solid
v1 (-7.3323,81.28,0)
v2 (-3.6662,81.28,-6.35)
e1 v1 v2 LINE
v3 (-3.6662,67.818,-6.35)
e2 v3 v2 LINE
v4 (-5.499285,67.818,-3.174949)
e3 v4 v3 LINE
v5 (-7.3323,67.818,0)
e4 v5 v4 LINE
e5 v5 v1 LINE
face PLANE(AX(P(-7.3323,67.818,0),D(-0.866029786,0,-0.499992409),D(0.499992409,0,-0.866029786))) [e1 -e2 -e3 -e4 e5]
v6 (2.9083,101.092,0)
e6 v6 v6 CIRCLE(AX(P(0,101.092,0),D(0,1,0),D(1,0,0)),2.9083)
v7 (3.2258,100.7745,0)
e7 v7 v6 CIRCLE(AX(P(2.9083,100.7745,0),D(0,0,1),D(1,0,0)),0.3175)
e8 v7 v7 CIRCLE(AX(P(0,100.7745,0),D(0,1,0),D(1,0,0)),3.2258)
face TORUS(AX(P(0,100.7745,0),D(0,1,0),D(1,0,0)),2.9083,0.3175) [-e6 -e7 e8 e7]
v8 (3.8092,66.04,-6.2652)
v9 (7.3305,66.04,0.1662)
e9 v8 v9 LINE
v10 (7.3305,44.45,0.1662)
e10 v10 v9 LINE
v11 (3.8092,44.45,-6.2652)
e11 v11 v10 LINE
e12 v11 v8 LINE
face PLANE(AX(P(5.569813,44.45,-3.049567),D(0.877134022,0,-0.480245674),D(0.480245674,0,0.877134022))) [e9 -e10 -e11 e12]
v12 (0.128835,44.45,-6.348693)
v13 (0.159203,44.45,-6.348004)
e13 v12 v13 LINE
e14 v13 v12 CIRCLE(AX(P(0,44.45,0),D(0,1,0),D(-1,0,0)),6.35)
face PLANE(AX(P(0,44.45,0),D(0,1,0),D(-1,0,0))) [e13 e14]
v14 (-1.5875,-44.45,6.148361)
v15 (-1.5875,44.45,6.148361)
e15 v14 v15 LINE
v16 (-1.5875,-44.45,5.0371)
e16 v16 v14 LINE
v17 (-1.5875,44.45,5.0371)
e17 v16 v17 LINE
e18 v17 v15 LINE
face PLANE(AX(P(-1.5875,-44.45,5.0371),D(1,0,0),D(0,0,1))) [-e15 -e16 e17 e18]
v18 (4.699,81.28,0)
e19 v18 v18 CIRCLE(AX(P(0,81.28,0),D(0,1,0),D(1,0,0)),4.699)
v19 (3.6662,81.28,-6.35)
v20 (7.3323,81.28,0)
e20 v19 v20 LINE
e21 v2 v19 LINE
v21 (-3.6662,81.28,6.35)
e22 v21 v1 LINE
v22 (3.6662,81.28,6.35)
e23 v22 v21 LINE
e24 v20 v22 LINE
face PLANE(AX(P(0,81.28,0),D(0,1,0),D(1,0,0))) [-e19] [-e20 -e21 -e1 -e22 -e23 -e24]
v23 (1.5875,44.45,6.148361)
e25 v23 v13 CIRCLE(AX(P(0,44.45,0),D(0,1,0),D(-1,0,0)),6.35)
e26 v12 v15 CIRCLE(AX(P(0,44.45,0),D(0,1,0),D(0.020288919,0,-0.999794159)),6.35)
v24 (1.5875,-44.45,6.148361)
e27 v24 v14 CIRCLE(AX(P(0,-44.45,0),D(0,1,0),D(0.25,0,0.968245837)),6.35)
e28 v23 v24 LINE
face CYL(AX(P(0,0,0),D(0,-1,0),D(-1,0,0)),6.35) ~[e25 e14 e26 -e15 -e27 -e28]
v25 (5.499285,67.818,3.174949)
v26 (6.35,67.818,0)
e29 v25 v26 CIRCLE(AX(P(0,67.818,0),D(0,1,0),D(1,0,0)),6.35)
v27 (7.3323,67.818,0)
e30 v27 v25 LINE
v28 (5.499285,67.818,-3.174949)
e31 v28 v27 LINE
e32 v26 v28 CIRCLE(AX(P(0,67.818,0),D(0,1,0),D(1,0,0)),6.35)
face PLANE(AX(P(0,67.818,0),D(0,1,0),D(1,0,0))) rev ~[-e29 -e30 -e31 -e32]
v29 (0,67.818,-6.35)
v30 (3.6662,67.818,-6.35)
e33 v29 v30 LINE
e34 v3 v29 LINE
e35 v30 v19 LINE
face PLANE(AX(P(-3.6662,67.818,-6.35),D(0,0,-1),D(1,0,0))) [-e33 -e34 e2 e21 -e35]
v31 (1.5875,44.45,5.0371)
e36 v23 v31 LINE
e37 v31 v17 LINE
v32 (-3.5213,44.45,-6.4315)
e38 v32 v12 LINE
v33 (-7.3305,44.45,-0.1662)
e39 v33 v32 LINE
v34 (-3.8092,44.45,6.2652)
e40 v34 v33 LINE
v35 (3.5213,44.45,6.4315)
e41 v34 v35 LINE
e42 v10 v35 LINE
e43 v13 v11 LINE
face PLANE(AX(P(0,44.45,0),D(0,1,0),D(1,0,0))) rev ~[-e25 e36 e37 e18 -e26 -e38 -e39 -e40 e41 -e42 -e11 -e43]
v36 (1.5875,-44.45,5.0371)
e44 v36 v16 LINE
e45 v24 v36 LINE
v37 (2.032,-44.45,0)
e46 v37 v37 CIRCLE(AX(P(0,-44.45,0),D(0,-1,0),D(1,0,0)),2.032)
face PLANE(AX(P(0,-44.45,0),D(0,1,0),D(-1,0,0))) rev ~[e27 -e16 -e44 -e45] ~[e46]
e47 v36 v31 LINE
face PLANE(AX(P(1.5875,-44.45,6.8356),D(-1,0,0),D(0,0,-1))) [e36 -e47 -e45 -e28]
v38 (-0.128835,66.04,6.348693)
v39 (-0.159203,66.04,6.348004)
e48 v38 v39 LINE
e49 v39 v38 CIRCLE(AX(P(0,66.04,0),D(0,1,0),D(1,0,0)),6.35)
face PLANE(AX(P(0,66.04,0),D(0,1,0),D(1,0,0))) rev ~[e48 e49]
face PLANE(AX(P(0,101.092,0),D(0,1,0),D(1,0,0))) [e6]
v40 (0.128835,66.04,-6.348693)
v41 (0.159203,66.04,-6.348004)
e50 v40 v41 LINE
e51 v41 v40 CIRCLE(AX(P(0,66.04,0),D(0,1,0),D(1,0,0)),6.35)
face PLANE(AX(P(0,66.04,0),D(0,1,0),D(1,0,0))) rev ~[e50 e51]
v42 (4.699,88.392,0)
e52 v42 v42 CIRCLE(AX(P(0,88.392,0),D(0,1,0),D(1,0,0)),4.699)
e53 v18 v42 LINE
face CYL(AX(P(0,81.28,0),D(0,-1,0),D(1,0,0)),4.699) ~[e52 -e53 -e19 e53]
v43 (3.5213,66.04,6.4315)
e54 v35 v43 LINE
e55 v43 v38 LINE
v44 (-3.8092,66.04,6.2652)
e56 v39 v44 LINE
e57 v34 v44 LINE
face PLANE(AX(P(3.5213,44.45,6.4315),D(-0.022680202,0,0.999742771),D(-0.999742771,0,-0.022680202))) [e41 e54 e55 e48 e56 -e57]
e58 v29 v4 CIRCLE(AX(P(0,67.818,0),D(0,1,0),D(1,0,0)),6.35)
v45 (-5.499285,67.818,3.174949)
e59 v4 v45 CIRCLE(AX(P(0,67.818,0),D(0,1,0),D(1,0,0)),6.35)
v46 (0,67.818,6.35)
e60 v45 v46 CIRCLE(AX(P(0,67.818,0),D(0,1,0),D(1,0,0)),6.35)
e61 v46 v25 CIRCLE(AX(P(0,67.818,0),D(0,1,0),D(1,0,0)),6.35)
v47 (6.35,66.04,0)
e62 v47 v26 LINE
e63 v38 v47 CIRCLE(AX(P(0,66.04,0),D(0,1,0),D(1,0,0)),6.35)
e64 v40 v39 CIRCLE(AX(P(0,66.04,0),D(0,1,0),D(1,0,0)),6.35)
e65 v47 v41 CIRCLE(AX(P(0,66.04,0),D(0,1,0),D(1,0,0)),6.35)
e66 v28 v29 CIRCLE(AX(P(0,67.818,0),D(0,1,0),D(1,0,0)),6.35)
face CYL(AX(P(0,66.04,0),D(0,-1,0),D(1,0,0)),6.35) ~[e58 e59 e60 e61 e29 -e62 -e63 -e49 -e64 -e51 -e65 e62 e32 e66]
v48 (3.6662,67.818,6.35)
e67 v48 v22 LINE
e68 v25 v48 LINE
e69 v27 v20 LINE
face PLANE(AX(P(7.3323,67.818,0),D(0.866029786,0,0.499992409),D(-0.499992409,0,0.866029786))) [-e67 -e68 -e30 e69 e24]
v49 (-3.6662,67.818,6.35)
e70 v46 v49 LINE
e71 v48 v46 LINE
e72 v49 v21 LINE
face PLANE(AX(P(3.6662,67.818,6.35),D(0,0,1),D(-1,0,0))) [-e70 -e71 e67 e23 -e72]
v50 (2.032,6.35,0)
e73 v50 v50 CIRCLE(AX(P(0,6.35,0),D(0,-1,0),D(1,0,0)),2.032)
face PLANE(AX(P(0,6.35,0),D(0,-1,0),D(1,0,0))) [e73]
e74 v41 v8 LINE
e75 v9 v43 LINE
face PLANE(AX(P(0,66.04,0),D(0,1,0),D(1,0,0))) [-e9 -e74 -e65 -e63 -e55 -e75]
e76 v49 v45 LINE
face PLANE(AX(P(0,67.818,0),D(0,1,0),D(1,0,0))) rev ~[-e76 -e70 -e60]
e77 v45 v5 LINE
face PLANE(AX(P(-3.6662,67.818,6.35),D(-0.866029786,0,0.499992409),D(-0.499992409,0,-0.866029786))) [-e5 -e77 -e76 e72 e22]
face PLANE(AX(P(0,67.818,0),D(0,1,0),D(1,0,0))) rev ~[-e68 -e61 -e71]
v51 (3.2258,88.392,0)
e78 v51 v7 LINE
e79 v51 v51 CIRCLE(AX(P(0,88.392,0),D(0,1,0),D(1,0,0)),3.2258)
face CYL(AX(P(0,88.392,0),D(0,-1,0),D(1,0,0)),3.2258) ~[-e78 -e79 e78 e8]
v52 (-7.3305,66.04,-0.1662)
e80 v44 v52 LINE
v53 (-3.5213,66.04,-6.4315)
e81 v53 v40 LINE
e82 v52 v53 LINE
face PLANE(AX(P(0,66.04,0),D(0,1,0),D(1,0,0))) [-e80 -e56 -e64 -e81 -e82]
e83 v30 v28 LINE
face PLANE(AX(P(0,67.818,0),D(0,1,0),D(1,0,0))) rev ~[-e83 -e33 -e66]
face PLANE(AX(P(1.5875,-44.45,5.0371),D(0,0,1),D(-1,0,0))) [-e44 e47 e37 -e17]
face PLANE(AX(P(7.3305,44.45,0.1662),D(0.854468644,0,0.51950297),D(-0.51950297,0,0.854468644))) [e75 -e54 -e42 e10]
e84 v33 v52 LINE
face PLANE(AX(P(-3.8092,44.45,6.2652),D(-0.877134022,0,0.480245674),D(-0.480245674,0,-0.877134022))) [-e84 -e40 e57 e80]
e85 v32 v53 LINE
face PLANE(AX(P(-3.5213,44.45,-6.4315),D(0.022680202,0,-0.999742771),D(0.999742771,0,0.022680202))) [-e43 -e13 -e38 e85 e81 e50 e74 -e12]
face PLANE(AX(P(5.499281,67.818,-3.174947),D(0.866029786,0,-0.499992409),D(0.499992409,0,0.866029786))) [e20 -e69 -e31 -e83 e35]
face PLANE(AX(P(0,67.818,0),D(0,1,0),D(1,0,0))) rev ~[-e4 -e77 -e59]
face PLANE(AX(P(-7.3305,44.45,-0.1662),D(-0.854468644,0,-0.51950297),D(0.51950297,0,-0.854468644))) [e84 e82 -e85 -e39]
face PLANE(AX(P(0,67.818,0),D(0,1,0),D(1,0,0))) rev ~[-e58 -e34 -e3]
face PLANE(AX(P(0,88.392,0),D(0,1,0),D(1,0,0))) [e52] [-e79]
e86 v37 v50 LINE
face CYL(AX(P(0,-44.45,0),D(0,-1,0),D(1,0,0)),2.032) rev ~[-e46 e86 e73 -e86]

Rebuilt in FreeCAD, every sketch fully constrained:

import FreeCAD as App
import Part
import Sketcher

V = App.Vector
Q = App.Units.Quantity


def edges_at(feature, points):
    """Names of the edges that pass closest to the given points."""
    edges = feature.Shape.Edges
    near = lambda p: min(range(len(edges)), key=lambda i: edges[i].distToShape(Part.Vertex(*p))[0])
    return sorted({f"Edge{near(p) + 1}" for p in points})

doc = App.newDocument("Part")
body = doc.addObject("PartDesign::Body", "Body")

# Sketch on XZ plane
sketch1 = body.newObject("Sketcher::SketchObject", "Sketch")
sketch1.AttachmentSupport = (doc.getObject("XZ_Plane"), [""])
sketch1.MapMode = "FlatFace"
sketch1.addGeometry(Part.Circle(V(0, 0, 0), V(0, 0, 1), 6.35), False)
sketch1.addConstraint(Sketcher.Constraint("Coincident", 0, 3, -1, 1))
sketch1.addConstraint(Sketcher.Constraint("Diameter", 0, Q("0.5 in")))
pad1 = body.newObject("PartDesign::Pad", "Pad")
pad1.Profile = sketch1
pad1.Length = Q("3.5 in")
pad1.Midplane = True

# Sketch on XZ plane
sketch2 = body.newObject("Sketcher::SketchObject", "Sketch001")
sketch2.AttachmentSupport = (doc.getObject("XZ_Plane"), [""])
sketch2.MapMode = "FlatFace"
sketch2.AttachmentOffset = App.Placement(V(0, 0, -1.75 * 25.4), App.Rotation())
sketch2.addGeometry(Part.LineSegment(V(7.3305, 0.1662, 0), V(3.8092, -6.2652, 0)), False)
sketch2.addGeometry(Part.LineSegment(V(3.8092, -6.2652, 0), V(-3.5213, -6.4315, 0)), False)
sketch2.addGeometry(Part.LineSegment(V(-3.5213, -6.4315, 0), V(-7.3305, -0.1662, 0)), False)
sketch2.addGeometry(Part.LineSegment(V(-7.3305, -0.1662, 0), V(-3.8092, 6.2652, 0)), False)
sketch2.addGeometry(Part.LineSegment(V(-3.8092, 6.2652, 0), V(3.5213, 6.4315, 0)), False)
sketch2.addGeometry(Part.LineSegment(V(3.5213, 6.4315, 0), V(7.3305, 0.1662, 0)), False)
sketch2.addConstraint(Sketcher.Constraint("Coincident", 0, 2, 1, 1))
sketch2.addConstraint(Sketcher.Constraint("Coincident", 1, 2, 2, 1))
sketch2.addConstraint(Sketcher.Constraint("Coincident", 2, 2, 3, 1))
sketch2.addConstraint(Sketcher.Constraint("Coincident", 3, 2, 4, 1))
sketch2.addConstraint(Sketcher.Constraint("Coincident", 4, 2, 5, 1))
sketch2.addConstraint(Sketcher.Constraint("Coincident", 5, 2, 0, 1))
sketch2.addConstraint(Sketcher.Constraint("Symmetric", 0, 2, 3, 2, -1, 1))
sketch2.addConstraint(Sketcher.Constraint("Symmetric", 1, 2, 4, 2, -1, 1))
sketch2.addConstraint(Sketcher.Constraint("Symmetric", 2, 2, 5, 2, -1, 1))
sketch2.addConstraint(Sketcher.Constraint("Equal", 0, 1))
sketch2.addConstraint(Sketcher.Constraint("Equal", 1, 2))
sketch2.addConstraint(Sketcher.Constraint("Angle", 1, Q("-178.7004 deg")))
sketch2.addConstraint(Sketcher.Constraint("Angle", 2, Q("121.299 deg")))
sketch2.addConstraint(Sketcher.Constraint("DistanceY", 1, 2, -1, 1, Q("0.2532 in")))
sketch2.addConstraint(Sketcher.Constraint("DistanceX", 2, 2, -1, 1, Q("0.2886 in")))
pad2 = body.newObject("PartDesign::Pad", "Pad001")
pad2.Profile = sketch2
pad2.Length = Q("0.85 in")
pad2.Reversed = True

# Sketch on XZ plane
sketch3 = body.newObject("Sketcher::SketchObject", "Sketch002")
sketch3.AttachmentSupport = (doc.getObject("XZ_Plane"), [""])
sketch3.MapMode = "FlatFace"
sketch3.AttachmentOffset = App.Placement(V(0, 0, -2.6 * 25.4), App.Rotation())
sketch3.addGeometry(Part.Circle(V(0, 0, 0), V(0, 0, 1), 6.35), False)
sketch3.addConstraint(Sketcher.Constraint("Coincident", 0, 3, -1, 1))
sketch3.addConstraint(Sketcher.Constraint("Diameter", 0, Q("0.5 in")))
pad3 = body.newObject("PartDesign::Pad", "Pad002")
pad3.Profile = sketch3
pad3.Length = Q("0.07 in")
pad3.Reversed = True

# Sketch on XZ plane
sketch4 = body.newObject("Sketcher::SketchObject", "Sketch003")
sketch4.AttachmentSupport = (doc.getObject("XZ_Plane"), [""])
sketch4.MapMode = "FlatFace"
sketch4.AttachmentOffset = App.Placement(V(0, 0, -2.67 * 25.4), App.Rotation())
sketch4.addGeometry(Part.LineSegment(V(7.3323, 0, 0), V(3.6662, -6.35, 0)), False)
sketch4.addGeometry(Part.LineSegment(V(3.6662, -6.35, 0), V(-3.6662, -6.35, 0)), False)
sketch4.addGeometry(Part.LineSegment(V(-3.6662, -6.35, 0), V(-7.3323, 0, 0)), False)
sketch4.addGeometry(Part.LineSegment(V(-7.3323, 0, 0), V(-3.6662, 6.35, 0)), False)
sketch4.addGeometry(Part.LineSegment(V(-3.6662, 6.35, 0), V(3.6662, 6.35, 0)), False)
sketch4.addGeometry(Part.LineSegment(V(3.6662, 6.35, 0), V(7.3323, 0, 0)), False)
sketch4.addConstraint(Sketcher.Constraint("Coincident", 0, 2, 1, 1))
sketch4.addConstraint(Sketcher.Constraint("Coincident", 1, 2, 2, 1))
sketch4.addConstraint(Sketcher.Constraint("Coincident", 2, 2, 3, 1))
sketch4.addConstraint(Sketcher.Constraint("Coincident", 3, 2, 4, 1))
sketch4.addConstraint(Sketcher.Constraint("Coincident", 4, 2, 5, 1))
sketch4.addConstraint(Sketcher.Constraint("Coincident", 5, 2, 0, 1))
sketch4.addConstraint(Sketcher.Constraint("Horizontal", 1))
sketch4.addConstraint(Sketcher.Constraint("Horizontal", 4))
sketch4.addConstraint(Sketcher.Constraint("Symmetric", 0, 2, 3, 2, -1, 1))
sketch4.addConstraint(Sketcher.Constraint("Symmetric", 2, 2, 5, 2, -1, 1))
sketch4.addConstraint(Sketcher.Constraint("PointOnObject", 2, 2, -1))
sketch4.addConstraint(Sketcher.Constraint("Parallel", 2, 5))
sketch4.addConstraint(Sketcher.Constraint("Vertical", 1, 2, 3, 2))
sketch4.addConstraint(Sketcher.Constraint("DistanceY", 1, 2, 3, 2, Q("0.5 in")))
sketch4.addConstraint(Sketcher.Constraint("Angle", 0, Q("-119.9995 deg")))
sketch4.addConstraint(Sketcher.Constraint("DistanceX", 2, 2, 0, 2, Q("0.433 in")))
pad4 = body.newObject("PartDesign::Pad", "Pad003")
pad4.Profile = sketch4
pad4.Length = Q("0.53 in")
pad4.Reversed = True

# Sketch on XZ plane
sketch5 = body.newObject("Sketcher::SketchObject", "Sketch004")
sketch5.AttachmentSupport = (doc.getObject("XZ_Plane"), [""])
sketch5.MapMode = "FlatFace"
sketch5.AttachmentOffset = App.Placement(V(0, 0, -3.2 * 25.4), App.Rotation())
sketch5.addGeometry(Part.Circle(V(0, 0, 0), V(0, 0, 1), 4.699), False)
sketch5.addConstraint(Sketcher.Constraint("Coincident", 0, 3, -1, 1))
sketch5.addConstraint(Sketcher.Constraint("Diameter", 0, Q("0.37 in")))
pad5 = body.newObject("PartDesign::Pad", "Pad004")
pad5.Profile = sketch5
pad5.Length = Q("0.28 in")
pad5.Reversed = True

# Sketch on XZ plane
sketch6 = body.newObject("Sketcher::SketchObject", "Sketch005")
sketch6.AttachmentSupport = (doc.getObject("XZ_Plane"), [""])
sketch6.MapMode = "FlatFace"
sketch6.AttachmentOffset = App.Placement(V(0, 0, -3.48 * 25.4), App.Rotation())
sketch6.addGeometry(Part.Circle(V(0, 0, 0), V(0, 0, 1), 3.2258), False)
sketch6.addConstraint(Sketcher.Constraint("Coincident", 0, 3, -1, 1))
sketch6.addConstraint(Sketcher.Constraint("Diameter", 0, Q("0.254 in")))
pad6 = body.newObject("PartDesign::Pad", "Pad005")
pad6.Profile = sketch6
pad6.Length = Q("0.5 in")
pad6.Reversed = True
doc.recompute()

fillet = body.newObject("PartDesign::Fillet", "Fillet")
fillet.Base = (pad6, edges_at(pad6, [(-3.226, 101.092, 0)]))
fillet.Radius = Q("0.0125 in")

# Sketch on XZ plane
sketch7 = body.newObject("Sketcher::SketchObject", "Sketch006")
sketch7.AttachmentSupport = (doc.getObject("XZ_Plane"), [""])
sketch7.MapMode = "FlatFace"
sketch7.AttachmentOffset = App.Placement(V(0, 0, 1.75 * 25.4), App.Rotation())
sketch7.addGeometry(Part.LineSegment(V(1.5875, 6.8356, 0), V(-1.5875, 6.8356, 0)), False)
sketch7.addGeometry(Part.LineSegment(V(-1.5875, 6.8356, 0), V(-1.5875, 5.0371, 0)), False)
sketch7.addGeometry(Part.LineSegment(V(-1.5875, 5.0371, 0), V(1.5875, 5.0371, 0)), False)
sketch7.addGeometry(Part.LineSegment(V(1.5875, 5.0371, 0), V(1.5875, 6.8356, 0)), False)
sketch7.addConstraint(Sketcher.Constraint("Coincident", 0, 2, 1, 1))
sketch7.addConstraint(Sketcher.Constraint("Coincident", 1, 2, 2, 1))
sketch7.addConstraint(Sketcher.Constraint("Coincident", 2, 2, 3, 1))
sketch7.addConstraint(Sketcher.Constraint("Coincident", 3, 2, 0, 1))
sketch7.addConstraint(Sketcher.Constraint("Horizontal", 0))
sketch7.addConstraint(Sketcher.Constraint("Vertical", 1))
sketch7.addConstraint(Sketcher.Constraint("Horizontal", 2))
sketch7.addConstraint(Sketcher.Constraint("Vertical", 3))
sketch7.addConstraint(Sketcher.Constraint("DistanceX", 0, 2, 0, 1, Q("0.125 in")))
sketch7.addConstraint(Sketcher.Constraint("DistanceY", 1, 2, 1, 1, Q("0.0708 in")))
sketch7.addConstraint(Sketcher.Constraint("DistanceX", 0, 2, -1, 1, Q("0.0625 in")))
sketch7.addConstraint(Sketcher.Constraint("DistanceY", -1, 1, 1, 2, Q("0.1983 in")))
pocket1 = body.newObject("PartDesign::Pocket", "Pocket")
pocket1.Profile = sketch7
pocket1.Length = Q("3.5 in")

# Sketch on XZ plane
sketch8 = body.newObject("Sketcher::SketchObject", "Sketch007")
sketch8.AttachmentSupport = (doc.getObject("XZ_Plane"), [""])
sketch8.MapMode = "FlatFace"
sketch8.AttachmentOffset = App.Placement(V(0, 0, 1.75 * 25.4), App.Rotation())
sketch8.addGeometry(Part.Circle(V(0, 0, 0), V(0, 0, 1), 2.032), False)
sketch8.addConstraint(Sketcher.Constraint("Coincident", 0, 3, -1, 1))
sketch8.addConstraint(Sketcher.Constraint("Diameter", 0, Q("0.16 in")))
pocket2 = body.newObject("PartDesign::Pocket", "Pocket001")
pocket2.Profile = sketch8
pocket2.Length = Q("2 in")

doc.recompute()
